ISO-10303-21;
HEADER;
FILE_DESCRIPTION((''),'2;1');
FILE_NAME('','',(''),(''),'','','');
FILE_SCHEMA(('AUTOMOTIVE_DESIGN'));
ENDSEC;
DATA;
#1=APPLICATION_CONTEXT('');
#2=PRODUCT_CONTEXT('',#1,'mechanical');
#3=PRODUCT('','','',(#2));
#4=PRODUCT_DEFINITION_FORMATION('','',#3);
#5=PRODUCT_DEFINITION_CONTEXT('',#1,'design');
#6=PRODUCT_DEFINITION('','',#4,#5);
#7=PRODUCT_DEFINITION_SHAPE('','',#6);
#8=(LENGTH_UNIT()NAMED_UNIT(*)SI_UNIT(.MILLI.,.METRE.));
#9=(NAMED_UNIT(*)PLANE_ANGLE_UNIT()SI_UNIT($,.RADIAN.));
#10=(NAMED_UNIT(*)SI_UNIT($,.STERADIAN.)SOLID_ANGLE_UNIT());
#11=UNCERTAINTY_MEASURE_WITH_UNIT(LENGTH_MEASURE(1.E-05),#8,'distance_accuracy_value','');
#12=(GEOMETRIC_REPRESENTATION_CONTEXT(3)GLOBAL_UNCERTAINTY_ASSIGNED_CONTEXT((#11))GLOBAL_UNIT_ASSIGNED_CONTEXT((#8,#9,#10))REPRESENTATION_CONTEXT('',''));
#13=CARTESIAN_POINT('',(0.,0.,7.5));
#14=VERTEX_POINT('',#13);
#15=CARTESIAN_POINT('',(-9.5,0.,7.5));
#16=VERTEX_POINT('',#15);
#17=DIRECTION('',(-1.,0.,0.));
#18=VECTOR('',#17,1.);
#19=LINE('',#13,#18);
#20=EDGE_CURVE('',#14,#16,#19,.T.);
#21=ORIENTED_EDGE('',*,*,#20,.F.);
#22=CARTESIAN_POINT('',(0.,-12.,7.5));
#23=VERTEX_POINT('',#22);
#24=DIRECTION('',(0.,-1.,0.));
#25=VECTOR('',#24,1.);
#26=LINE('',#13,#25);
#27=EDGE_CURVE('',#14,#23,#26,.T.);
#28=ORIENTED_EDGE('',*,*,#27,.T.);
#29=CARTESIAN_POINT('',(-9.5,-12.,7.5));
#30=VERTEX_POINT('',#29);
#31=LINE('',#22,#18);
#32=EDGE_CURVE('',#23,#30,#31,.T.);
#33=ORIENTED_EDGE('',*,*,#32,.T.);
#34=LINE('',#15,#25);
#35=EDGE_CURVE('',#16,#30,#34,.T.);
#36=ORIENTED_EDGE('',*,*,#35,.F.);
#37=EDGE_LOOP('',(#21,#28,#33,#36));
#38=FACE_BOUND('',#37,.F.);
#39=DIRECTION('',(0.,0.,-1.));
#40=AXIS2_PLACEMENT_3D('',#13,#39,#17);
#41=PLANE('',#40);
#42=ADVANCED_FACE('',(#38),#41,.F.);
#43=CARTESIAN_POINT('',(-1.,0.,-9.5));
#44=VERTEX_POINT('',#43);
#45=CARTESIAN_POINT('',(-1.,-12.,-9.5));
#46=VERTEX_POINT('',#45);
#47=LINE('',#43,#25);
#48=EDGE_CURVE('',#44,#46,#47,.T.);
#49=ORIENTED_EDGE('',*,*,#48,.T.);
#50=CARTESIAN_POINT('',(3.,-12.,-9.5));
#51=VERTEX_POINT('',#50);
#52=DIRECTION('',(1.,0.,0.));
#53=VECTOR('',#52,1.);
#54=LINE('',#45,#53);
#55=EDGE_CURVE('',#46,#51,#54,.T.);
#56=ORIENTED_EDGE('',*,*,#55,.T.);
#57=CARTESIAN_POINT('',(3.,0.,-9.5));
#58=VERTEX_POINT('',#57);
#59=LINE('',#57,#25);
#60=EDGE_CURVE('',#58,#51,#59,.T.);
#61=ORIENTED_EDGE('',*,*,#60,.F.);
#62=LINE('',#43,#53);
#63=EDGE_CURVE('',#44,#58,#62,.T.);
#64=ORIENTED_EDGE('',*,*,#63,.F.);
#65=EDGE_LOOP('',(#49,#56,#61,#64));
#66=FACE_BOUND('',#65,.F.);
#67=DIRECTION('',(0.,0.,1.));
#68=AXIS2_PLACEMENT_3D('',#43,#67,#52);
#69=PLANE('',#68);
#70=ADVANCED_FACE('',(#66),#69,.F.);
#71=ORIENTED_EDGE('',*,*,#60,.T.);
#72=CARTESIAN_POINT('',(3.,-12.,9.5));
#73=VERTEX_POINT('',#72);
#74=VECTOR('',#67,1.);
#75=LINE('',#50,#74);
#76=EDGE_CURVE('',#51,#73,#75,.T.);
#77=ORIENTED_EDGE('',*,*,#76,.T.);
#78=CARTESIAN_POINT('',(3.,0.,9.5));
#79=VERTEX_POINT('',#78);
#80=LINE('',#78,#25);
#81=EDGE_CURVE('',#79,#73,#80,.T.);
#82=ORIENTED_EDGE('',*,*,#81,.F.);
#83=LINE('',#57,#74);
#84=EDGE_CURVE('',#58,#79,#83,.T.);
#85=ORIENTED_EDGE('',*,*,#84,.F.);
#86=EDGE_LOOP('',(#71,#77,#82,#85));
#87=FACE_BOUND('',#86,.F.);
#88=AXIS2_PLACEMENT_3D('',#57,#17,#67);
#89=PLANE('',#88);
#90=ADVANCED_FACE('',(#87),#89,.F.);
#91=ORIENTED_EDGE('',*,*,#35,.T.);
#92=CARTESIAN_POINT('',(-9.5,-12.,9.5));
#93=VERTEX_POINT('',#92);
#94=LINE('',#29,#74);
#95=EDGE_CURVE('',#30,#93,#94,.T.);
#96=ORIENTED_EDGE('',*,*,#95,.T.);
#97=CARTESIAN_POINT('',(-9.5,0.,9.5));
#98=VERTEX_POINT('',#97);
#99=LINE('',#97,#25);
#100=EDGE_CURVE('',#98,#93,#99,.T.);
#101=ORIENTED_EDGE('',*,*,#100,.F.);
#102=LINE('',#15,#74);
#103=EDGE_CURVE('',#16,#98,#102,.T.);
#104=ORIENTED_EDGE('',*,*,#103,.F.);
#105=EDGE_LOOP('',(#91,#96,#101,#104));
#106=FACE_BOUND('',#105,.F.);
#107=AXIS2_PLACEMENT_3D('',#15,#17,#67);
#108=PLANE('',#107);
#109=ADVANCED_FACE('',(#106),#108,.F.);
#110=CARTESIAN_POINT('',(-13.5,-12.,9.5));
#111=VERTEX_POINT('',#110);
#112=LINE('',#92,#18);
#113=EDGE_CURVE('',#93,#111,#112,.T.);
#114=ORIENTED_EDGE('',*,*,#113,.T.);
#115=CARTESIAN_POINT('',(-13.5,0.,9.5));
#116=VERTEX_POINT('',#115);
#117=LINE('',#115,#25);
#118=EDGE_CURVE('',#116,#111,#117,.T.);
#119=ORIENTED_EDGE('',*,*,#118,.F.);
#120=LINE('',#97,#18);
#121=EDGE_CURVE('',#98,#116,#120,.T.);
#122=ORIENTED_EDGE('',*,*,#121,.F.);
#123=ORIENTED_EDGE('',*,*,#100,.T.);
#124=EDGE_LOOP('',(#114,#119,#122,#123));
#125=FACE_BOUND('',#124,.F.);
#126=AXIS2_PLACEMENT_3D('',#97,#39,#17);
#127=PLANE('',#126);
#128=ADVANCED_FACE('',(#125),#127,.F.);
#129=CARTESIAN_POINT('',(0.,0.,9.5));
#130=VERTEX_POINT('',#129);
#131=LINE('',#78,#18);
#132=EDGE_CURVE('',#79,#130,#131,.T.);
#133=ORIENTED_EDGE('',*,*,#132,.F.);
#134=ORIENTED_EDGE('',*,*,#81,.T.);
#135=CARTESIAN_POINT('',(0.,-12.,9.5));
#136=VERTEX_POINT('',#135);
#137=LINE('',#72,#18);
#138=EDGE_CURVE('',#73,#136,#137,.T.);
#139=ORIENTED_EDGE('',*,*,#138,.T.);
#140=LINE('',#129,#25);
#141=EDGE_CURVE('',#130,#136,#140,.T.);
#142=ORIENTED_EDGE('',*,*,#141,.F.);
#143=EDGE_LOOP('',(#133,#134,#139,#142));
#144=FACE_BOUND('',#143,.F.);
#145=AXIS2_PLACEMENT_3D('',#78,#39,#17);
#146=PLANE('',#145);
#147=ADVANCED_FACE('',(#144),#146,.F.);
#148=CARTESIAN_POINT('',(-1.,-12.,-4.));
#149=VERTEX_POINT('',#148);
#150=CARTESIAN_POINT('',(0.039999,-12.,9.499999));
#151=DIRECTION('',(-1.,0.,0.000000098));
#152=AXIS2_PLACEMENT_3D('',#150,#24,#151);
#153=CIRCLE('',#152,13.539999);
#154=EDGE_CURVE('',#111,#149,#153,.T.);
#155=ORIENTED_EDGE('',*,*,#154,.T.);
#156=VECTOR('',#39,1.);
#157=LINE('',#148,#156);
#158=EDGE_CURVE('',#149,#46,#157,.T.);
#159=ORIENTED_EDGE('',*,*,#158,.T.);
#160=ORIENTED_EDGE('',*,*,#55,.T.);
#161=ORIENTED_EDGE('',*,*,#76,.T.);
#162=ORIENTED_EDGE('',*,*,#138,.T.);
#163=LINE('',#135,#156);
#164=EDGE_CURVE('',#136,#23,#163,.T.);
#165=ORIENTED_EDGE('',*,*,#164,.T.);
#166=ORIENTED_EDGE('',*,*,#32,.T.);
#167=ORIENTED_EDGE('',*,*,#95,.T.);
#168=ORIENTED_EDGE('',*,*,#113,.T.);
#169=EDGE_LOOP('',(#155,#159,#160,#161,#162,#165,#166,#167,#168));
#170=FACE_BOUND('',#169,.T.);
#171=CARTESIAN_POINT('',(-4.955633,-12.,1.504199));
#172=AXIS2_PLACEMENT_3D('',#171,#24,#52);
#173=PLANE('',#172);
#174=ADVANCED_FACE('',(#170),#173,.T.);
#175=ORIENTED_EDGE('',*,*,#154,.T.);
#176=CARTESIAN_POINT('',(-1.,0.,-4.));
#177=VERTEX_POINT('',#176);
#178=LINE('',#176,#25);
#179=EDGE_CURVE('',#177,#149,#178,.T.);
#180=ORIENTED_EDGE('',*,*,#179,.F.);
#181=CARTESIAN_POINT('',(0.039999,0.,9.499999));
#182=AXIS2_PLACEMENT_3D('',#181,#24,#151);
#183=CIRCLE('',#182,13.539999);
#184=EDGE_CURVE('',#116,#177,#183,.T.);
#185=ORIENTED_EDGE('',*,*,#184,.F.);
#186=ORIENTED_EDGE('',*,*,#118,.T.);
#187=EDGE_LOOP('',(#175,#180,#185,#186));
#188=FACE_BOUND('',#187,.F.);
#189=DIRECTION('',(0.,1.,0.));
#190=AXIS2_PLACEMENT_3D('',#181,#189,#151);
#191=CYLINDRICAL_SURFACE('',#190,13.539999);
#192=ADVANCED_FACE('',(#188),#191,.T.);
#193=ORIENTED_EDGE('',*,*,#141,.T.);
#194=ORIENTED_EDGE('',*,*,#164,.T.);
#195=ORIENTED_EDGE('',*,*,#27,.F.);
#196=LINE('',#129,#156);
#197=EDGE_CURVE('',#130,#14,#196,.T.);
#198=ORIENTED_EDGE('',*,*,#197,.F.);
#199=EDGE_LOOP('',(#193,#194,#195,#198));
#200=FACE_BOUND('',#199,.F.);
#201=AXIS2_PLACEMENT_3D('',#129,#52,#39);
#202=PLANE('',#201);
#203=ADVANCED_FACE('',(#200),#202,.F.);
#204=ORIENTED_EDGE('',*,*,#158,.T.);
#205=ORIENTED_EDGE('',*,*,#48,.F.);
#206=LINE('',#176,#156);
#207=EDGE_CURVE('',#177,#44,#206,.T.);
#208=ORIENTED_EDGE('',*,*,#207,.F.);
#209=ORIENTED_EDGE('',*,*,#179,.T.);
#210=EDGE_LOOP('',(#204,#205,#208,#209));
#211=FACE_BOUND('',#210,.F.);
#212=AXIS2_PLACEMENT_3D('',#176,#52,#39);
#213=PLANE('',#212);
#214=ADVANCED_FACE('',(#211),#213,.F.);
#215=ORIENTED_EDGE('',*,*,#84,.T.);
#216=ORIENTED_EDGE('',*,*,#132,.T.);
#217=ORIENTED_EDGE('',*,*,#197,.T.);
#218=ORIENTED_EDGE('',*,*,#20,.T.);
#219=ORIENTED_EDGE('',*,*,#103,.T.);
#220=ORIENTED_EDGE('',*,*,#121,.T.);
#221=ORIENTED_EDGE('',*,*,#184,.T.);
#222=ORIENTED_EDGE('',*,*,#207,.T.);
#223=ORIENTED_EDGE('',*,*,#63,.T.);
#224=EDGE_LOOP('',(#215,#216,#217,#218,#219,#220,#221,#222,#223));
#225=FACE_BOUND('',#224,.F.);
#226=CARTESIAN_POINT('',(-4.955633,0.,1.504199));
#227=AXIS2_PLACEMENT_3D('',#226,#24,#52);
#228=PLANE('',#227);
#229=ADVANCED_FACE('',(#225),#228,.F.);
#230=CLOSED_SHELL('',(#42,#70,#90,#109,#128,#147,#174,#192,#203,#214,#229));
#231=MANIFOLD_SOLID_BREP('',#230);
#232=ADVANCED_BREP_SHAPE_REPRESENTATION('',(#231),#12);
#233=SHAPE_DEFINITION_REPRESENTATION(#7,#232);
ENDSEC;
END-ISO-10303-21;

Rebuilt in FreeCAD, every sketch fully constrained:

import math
import FreeCAD as App
import Part
import Sketcher
from FreeCAD import Vector

doc = App.newDocument("Part")
body = doc.addObject("PartDesign::Body", "Body")

sketch1 = doc.addObject("Sketcher::SketchObject", "Sketch")
body.addObject(sketch1)
sketch1.AttachmentSupport = (doc.XZ_Plane, [""])
sketch1.MapMode = "FlatFace"
sketch1.addGeometry(Part.LineSegment(Vector(0, 7.5, 0), Vector(-9.5, 7.5, 0)), False)
sketch1.addGeometry(Part.LineSegment(Vector(-9.5, 7.5, 0), Vector(-9.5, 9.5, 0)), False)
sketch1.addGeometry(Part.LineSegment(Vector(-9.5, 9.5, 0), Vector(-13.5, 9.5, 0)), False)
sketch1.addGeometry(Part.ArcOfCircle(Part.Circle(Vector(0, 9.5, 0), Vector(0, 0, 1), 13.5), math.radians(180), math.radians(266)), False)
sketch1.addGeometry(Part.LineSegment(Vector(-1, -4, 0), Vector(-1, -9.5, 0)), False)
sketch1.addGeometry(Part.LineSegment(Vector(-1, -9.5, 0), Vector(3, -9.5, 0)), False)
sketch1.addGeometry(Part.LineSegment(Vector(3, -9.5, 0), Vector(3, 9.5, 0)), False)
sketch1.addGeometry(Part.LineSegment(Vector(3, 9.5, 0), Vector(0, 9.5, 0)), False)
sketch1.addGeometry(Part.LineSegment(Vector(0, 9.5, 0), Vector(0, 7.5, 0)), False)
sketch1.addConstraint(Sketcher.Constraint("Coincident", 0, 2, 1, 1))
sketch1.addConstraint(Sketcher.Constraint("Coincident", 1, 2, 2, 1))
sketch1.addConstraint(Sketcher.Constraint("Coincident", 2, 2, 3, 1))
sketch1.addConstraint(Sketcher.Constraint("Coincident", 3, 2, 4, 1))
sketch1.addConstraint(Sketcher.Constraint("Coincident", 4, 2, 5, 1))
sketch1.addConstraint(Sketcher.Constraint("Coincident", 5, 2, 6, 1))
sketch1.addConstraint(Sketcher.Constraint("Coincident", 6, 2, 7, 1))
sketch1.addConstraint(Sketcher.Constraint("Coincident", 7, 2, 8, 1))
sketch1.addConstraint(Sketcher.Constraint("Coincident", 8, 2, 0, 1))
sketch1.addConstraint(Sketcher.Constraint("Horizontal", 0))
sketch1.addConstraint(Sketcher.Constraint("Vertical", 1))
sketch1.addConstraint(Sketcher.Constraint("Horizontal", 2))
sketch1.addConstraint(Sketcher.Constraint("Vertical", 4))
sketch1.addConstraint(Sketcher.Constraint("Horizontal", 5))
sketch1.addConstraint(Sketcher.Constraint("Vertical", 6))
sketch1.addConstraint(Sketcher.Constraint("Horizontal", 7))
sketch1.addConstraint(Sketcher.Constraint("Vertical", 8))
sketch1.addConstraint(Sketcher.Constraint("PointOnObject", 7, 2, -2))
sketch1.addConstraint(Sketcher.Constraint("Horizontal", 3, 3, 1, 2))
sketch1.addConstraint(Sketcher.Constraint("Horizontal", 2, 2, 6, 2))
sketch1.addConstraint(Sketcher.Constraint("Equal", 2, 5))
sketch1.addConstraint(Sketcher.Constraint("DistanceX", 2, 2, 2, 1, 4.0))
sketch1.addConstraint(Sketcher.Constraint("DistanceX", 7, 2, 7, 1, 3.0))
sketch1.addConstraint(Sketcher.Constraint("DistanceY", 1, 1, 1, 2, 2.0))
sketch1.addConstraint(Sketcher.Constraint("DistanceY", 6, 1, 6, 2, 19.0))
sketch1.addConstraint(Sketcher.Constraint("Radius", 3, 13.539999))
sketch1.addConstraint(Sketcher.Constraint("DistanceX", 0, 2, 0, 1, 9.5))
sketch1.addConstraint(Sketcher.Constraint("DistanceY", 3, 2, -1, 1, 4.0))
pad1 = doc.addObject("PartDesign::Pad", "Pad")
body.addObject(pad1)
pad1.Profile = sketch1
pad1.Length = 12

doc.recompute()
